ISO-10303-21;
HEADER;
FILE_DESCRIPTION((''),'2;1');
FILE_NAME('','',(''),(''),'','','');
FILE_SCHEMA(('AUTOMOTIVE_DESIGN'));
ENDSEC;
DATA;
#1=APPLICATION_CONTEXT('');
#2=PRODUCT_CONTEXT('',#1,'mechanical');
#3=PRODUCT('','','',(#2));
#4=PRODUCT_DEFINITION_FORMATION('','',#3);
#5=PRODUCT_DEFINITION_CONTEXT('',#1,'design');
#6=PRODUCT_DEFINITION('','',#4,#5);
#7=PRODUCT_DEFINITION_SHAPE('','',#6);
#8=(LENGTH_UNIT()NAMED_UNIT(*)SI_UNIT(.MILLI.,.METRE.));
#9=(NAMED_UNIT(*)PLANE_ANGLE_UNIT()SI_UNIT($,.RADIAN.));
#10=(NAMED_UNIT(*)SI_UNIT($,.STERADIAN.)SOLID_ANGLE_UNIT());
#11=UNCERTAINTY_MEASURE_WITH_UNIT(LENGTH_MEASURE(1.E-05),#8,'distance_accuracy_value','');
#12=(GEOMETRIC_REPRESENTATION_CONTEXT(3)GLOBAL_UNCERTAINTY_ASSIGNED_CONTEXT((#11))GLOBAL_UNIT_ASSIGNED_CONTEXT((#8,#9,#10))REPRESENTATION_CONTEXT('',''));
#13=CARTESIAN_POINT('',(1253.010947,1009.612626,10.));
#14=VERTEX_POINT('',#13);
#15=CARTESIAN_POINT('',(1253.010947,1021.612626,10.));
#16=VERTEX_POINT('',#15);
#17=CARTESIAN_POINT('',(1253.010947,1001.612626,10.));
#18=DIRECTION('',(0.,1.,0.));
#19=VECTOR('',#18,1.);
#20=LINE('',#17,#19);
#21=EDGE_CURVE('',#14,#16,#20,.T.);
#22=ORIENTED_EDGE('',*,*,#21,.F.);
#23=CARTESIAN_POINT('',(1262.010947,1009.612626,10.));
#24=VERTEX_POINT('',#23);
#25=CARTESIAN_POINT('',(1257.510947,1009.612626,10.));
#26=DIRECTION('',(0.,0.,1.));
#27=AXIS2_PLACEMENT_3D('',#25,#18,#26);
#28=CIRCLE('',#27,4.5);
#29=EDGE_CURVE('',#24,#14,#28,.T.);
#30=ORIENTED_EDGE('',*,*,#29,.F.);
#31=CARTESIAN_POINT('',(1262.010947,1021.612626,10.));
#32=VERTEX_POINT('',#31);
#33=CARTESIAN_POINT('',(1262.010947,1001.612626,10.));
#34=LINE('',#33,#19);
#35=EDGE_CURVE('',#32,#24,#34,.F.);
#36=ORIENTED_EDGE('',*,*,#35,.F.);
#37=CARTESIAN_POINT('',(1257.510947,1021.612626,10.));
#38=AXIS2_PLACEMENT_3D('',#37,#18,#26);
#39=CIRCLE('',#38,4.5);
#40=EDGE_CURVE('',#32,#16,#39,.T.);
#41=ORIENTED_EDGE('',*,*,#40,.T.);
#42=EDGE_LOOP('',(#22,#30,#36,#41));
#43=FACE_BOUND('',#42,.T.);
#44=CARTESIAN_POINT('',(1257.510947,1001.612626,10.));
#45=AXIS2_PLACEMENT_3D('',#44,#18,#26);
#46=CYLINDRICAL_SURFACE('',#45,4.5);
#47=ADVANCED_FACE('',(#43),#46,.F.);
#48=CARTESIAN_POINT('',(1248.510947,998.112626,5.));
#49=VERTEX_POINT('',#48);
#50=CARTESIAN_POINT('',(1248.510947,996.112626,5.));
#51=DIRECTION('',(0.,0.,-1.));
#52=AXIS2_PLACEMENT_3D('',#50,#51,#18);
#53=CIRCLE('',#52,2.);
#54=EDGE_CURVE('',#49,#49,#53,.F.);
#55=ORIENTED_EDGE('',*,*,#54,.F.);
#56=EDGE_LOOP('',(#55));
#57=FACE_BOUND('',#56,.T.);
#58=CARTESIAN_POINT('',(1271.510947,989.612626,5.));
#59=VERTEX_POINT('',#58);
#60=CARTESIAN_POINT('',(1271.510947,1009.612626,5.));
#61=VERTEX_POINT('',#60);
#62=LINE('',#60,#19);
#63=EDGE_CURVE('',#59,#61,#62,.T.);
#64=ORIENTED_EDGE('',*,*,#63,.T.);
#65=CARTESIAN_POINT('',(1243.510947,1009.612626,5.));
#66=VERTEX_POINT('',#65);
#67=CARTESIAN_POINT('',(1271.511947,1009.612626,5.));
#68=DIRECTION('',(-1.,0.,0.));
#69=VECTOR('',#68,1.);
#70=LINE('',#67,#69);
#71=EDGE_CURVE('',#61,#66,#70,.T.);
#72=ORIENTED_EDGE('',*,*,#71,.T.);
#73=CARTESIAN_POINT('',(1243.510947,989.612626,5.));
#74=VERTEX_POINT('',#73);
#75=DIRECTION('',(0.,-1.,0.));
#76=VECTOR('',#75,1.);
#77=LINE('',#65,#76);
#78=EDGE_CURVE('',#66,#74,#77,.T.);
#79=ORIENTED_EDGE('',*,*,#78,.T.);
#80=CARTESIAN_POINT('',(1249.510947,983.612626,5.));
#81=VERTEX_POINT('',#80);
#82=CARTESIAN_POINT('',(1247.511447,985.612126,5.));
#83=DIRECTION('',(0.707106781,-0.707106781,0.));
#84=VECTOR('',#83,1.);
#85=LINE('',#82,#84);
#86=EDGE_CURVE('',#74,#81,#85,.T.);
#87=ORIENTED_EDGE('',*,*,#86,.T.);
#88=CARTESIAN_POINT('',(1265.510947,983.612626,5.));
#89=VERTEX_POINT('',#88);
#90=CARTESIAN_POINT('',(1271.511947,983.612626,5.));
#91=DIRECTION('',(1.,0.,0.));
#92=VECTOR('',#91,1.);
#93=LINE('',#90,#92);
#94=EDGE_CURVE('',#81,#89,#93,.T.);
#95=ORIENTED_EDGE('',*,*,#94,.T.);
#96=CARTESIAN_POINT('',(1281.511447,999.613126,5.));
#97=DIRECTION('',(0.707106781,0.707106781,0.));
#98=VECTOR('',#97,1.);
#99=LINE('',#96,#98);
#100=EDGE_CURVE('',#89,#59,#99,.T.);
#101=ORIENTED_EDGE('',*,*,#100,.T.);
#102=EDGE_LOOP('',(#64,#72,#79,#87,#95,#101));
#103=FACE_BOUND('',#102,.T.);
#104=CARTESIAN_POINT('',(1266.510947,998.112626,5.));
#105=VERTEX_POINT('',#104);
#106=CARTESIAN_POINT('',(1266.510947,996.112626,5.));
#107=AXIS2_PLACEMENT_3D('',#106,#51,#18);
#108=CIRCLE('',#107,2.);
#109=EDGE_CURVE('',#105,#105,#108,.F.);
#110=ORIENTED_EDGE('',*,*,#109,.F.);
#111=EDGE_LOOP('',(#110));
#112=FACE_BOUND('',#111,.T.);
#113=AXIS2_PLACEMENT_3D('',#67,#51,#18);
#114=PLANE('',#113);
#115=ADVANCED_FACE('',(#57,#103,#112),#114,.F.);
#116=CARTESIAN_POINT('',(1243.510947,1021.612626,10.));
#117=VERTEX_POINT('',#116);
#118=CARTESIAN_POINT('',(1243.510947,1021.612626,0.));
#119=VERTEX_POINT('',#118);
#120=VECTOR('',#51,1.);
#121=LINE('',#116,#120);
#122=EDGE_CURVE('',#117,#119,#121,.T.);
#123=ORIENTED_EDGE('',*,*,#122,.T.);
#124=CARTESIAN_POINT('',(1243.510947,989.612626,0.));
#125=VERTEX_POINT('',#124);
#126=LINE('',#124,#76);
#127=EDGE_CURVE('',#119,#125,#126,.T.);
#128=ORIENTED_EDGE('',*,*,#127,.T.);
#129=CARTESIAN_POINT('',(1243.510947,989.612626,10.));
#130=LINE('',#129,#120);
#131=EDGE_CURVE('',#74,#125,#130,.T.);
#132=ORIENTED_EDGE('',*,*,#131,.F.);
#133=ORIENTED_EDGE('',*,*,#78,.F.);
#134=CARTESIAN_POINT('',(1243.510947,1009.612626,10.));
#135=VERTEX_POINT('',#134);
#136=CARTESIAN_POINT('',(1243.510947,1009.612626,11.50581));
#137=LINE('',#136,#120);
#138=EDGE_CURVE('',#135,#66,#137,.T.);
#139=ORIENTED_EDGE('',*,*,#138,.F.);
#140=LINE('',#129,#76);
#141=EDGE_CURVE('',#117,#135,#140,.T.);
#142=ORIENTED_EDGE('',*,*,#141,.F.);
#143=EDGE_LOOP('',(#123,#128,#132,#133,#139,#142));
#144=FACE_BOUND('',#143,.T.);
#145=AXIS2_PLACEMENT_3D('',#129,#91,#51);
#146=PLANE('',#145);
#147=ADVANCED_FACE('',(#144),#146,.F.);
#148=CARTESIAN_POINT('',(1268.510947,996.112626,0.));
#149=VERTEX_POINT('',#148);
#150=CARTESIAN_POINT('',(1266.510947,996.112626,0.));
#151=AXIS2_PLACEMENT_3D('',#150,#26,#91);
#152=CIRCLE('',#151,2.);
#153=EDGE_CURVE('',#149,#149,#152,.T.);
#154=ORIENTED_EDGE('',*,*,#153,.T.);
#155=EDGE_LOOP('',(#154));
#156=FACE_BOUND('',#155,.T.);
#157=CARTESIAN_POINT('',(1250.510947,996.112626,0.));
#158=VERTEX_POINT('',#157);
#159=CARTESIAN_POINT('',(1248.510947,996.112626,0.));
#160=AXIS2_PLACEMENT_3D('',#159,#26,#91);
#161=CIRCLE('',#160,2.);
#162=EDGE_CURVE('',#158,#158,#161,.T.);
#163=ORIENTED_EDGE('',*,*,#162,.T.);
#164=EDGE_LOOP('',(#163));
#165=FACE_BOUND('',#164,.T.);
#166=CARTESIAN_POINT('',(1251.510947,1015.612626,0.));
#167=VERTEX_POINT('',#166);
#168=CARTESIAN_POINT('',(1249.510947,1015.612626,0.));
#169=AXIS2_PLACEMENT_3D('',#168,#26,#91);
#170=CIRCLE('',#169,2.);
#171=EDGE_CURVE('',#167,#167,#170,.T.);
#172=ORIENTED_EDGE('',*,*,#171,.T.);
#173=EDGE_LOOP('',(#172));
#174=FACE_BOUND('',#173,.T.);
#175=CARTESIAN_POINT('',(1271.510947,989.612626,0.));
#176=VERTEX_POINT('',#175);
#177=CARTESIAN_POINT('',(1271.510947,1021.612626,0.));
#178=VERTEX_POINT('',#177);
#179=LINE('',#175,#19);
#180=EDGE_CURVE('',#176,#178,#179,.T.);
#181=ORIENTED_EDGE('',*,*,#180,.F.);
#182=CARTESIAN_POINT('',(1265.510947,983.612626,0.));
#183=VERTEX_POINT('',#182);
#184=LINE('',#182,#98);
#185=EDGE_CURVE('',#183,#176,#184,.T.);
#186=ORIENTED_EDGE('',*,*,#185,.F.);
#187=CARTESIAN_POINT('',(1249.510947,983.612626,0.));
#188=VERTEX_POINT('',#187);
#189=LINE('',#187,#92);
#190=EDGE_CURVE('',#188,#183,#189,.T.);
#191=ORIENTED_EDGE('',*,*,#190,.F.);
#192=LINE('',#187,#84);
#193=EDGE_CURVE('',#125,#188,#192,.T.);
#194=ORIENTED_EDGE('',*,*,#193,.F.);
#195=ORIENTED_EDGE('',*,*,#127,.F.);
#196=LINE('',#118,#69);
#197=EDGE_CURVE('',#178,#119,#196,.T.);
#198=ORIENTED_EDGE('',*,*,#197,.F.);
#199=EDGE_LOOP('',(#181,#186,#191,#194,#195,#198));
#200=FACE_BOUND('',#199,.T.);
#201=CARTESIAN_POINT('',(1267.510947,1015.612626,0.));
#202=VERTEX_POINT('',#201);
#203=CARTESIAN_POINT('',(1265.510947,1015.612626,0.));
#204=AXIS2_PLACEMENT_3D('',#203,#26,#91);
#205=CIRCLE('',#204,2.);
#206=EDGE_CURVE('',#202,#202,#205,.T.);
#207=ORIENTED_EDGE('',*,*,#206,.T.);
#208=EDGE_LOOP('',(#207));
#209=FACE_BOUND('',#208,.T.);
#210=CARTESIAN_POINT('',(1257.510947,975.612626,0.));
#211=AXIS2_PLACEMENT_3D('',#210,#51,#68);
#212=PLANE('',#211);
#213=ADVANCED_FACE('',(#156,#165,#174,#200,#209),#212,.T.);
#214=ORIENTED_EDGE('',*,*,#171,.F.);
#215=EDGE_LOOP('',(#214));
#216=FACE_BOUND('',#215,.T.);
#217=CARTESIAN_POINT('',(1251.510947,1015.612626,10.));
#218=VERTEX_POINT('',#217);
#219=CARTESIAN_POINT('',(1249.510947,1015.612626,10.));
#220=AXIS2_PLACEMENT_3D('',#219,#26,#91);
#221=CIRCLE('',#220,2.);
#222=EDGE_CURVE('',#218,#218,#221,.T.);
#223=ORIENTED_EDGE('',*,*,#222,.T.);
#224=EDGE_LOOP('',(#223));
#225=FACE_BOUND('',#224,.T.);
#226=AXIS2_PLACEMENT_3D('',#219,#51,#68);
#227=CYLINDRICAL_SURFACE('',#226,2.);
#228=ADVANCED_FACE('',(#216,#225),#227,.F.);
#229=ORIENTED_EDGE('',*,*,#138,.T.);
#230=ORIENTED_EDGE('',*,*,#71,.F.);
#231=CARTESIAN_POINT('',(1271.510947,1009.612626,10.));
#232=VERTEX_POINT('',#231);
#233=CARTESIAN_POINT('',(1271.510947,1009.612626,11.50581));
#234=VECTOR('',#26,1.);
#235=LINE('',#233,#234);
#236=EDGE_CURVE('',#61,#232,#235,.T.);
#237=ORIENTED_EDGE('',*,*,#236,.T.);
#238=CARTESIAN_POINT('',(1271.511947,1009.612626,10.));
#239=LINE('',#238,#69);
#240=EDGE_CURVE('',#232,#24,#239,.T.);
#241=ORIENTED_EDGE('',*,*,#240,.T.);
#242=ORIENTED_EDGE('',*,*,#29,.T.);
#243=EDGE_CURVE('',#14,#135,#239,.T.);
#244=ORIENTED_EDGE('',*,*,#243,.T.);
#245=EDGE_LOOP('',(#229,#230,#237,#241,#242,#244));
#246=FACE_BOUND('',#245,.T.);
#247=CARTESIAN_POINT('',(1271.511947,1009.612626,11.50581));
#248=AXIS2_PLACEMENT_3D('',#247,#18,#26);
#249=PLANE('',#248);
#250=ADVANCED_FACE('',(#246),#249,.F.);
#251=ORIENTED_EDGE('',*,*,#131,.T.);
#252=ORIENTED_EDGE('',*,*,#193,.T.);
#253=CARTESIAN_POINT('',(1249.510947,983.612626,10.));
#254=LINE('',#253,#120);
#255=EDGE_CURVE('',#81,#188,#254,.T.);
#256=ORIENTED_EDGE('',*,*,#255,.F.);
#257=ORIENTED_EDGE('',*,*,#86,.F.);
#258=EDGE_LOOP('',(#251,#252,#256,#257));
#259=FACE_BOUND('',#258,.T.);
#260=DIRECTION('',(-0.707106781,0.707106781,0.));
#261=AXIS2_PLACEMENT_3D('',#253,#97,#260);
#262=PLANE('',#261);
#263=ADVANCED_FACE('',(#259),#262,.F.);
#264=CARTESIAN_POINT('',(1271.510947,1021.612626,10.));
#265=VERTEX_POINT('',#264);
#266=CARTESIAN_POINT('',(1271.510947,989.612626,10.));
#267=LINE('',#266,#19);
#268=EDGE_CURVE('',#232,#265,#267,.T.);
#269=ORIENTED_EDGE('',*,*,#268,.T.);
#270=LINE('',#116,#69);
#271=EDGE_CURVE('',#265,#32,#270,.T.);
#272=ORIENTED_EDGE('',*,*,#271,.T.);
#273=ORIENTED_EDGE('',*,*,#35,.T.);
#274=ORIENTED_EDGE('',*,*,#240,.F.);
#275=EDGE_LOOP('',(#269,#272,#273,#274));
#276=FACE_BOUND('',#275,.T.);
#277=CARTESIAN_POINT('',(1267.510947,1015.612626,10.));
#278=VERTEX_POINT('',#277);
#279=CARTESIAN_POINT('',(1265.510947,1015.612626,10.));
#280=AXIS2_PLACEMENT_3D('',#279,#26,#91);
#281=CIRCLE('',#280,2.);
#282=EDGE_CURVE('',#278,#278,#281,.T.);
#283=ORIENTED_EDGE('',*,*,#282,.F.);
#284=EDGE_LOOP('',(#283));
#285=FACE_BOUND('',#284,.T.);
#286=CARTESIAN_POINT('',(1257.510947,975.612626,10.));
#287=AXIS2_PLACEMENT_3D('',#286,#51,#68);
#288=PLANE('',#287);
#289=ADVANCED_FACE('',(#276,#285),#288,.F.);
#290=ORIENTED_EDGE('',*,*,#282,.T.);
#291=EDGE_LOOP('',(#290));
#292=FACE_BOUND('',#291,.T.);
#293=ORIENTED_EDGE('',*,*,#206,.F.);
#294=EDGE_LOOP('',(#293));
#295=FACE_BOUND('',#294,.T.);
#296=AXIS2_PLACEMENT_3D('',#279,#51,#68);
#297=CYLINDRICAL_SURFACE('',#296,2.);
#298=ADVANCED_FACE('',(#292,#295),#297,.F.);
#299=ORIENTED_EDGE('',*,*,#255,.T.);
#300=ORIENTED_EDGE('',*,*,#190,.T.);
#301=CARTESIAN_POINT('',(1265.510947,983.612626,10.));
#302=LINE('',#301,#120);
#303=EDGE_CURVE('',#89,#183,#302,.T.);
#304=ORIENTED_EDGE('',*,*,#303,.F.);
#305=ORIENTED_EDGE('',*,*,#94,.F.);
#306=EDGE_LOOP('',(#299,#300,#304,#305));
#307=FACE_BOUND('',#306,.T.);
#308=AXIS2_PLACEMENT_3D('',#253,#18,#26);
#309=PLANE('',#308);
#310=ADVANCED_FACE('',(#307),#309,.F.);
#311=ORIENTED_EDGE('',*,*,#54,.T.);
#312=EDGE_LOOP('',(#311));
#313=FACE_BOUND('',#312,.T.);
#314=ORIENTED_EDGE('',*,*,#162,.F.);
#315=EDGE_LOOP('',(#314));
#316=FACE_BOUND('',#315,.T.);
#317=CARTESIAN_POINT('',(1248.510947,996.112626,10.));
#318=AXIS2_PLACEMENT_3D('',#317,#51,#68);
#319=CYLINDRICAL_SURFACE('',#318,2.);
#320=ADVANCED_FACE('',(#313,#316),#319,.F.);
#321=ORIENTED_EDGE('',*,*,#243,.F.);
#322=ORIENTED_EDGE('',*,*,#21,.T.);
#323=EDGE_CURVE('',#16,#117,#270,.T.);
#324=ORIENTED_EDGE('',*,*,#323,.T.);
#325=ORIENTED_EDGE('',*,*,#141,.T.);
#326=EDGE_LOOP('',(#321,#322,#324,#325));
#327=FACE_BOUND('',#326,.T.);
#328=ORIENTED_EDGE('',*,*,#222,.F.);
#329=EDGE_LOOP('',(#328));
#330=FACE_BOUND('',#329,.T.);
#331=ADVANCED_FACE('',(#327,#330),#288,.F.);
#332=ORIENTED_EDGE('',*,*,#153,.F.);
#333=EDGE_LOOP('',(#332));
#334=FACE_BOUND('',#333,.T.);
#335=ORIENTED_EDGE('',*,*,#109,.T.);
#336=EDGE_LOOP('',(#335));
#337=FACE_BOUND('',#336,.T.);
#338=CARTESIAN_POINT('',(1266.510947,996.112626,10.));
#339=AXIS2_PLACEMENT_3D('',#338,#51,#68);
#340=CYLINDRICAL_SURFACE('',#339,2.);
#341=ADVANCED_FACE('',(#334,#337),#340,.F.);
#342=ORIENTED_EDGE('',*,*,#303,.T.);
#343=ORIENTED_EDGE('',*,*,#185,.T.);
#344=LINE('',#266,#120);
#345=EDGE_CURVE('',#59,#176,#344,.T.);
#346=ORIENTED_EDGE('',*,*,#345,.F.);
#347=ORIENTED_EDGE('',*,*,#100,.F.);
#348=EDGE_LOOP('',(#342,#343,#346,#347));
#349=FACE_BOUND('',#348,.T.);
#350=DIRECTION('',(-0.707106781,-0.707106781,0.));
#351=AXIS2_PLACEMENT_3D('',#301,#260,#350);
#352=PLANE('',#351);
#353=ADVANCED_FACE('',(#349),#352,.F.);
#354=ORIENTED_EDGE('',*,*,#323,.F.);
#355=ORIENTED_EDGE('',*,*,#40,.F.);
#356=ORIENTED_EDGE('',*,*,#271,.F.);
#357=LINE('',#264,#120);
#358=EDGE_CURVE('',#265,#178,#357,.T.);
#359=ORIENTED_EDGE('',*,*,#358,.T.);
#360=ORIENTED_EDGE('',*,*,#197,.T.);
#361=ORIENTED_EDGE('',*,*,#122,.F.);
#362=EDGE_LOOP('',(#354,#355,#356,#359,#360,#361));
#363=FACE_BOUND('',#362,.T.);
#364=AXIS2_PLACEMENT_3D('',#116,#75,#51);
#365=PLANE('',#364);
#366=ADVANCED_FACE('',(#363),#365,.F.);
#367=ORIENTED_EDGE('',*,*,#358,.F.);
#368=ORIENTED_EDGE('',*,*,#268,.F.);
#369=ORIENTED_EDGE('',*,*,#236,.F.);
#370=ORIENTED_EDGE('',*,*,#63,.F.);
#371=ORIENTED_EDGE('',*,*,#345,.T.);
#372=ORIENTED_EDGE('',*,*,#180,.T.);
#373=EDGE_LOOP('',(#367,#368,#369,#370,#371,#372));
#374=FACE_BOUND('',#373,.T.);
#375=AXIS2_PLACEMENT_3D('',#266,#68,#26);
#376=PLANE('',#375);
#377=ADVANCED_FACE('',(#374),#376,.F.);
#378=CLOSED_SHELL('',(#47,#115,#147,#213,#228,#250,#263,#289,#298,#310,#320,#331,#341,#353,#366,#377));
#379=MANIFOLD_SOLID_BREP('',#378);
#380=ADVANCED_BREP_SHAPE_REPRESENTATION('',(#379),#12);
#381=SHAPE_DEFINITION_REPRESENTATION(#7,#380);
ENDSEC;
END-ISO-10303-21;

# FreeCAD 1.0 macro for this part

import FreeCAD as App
import Part
import Sketcher

V = App.Vector
Q = App.Units.Quantity

doc = App.newDocument("Part")
body = doc.addObject("PartDesign::Body", "Body")

# Sketch on XY plane
sketch1 = doc.addObject("Sketcher::SketchObject", "Sketch")
body.addObject(sketch1)
sketch1.AttachmentSupport = (doc.XY_Plane, [""])
sketch1.MapMode = "FlatFace"
sketch1.addGeometry(Part.LineSegment(V(1243.5, 1021.6, 0), V(1243.5, 989.6, 0)), False)
sketch1.addGeometry(Part.LineSegment(V(1243.5, 989.6, 0), V(1249.5, 983.6, 0)), False)
sketch1.addGeometry(Part.LineSegment(V(1249.5, 983.6, 0), V(1265.5, 983.6, 0)), False)
sketch1.addGeometry(Part.LineSegment(V(1265.5, 983.6, 0), V(1271.5, 989.6, 0)), False)
sketch1.addGeometry(Part.LineSegment(V(1271.5, 989.6, 0), V(1271.5, 1021.6, 0)), False)
sketch1.addGeometry(Part.LineSegment(V(1271.5, 1021.6, 0), V(1243.5, 1021.6, 0)), False)
sketch1.addGeometry(Part.Circle(V(1266.5, 996.1, 0), V(0, 0, 1), 2), False)
sketch1.addGeometry(Part.Circle(V(1248.5, 996.1, 0), V(0, 0, 1), 2), False)
sketch1.addGeometry(Part.Circle(V(1265.5, 1015.6, 0), V(0, 0, 1), 2), False)
sketch1.addGeometry(Part.Circle(V(1249.5, 1015.6, 0), V(0, 0, 1), 2), False)
sketch1.addConstraint(Sketcher.Constraint("Coincident", 0, 2, 1, 1))
sketch1.addConstraint(Sketcher.Constraint("Coincident", 1, 2, 2, 1))
sketch1.addConstraint(Sketcher.Constraint("Coincident", 2, 2, 3, 1))
sketch1.addConstraint(Sketcher.Constraint("Coincident", 3, 2, 4, 1))
sketch1.addConstraint(Sketcher.Constraint("Coincident", 4, 2, 5, 1))
sketch1.addConstraint(Sketcher.Constraint("Coincident", 5, 2, 0, 1))
sketch1.addConstraint(Sketcher.Constraint("Vertical", 0))
sketch1.addConstraint(Sketcher.Constraint("Horizontal", 2))
sketch1.addConstraint(Sketcher.Constraint("Vertical", 4))
sketch1.addConstraint(Sketcher.Constraint("Horizontal", 5))
sketch1.addConstraint(Sketcher.Constraint("Equal", 6, 7))
sketch1.addConstraint(Sketcher.Constraint("Equal", 7, 8))
sketch1.addConstraint(Sketcher.Constraint("Equal", 8, 9))
sketch1.addConstraint(Sketcher.Constraint("Perpendicular", 1, 3))
sketch1.addConstraint(Sketcher.Constraint("Horizontal", 6, 3, 7, 3))
sketch1.addConstraint(Sketcher.Constraint("Horizontal", 8, 3, 9, 3))
sketch1.addConstraint(Sketcher.Constraint("Horizontal", 0, 2, 3, 2))
sketch1.addConstraint(Sketcher.Constraint("Vertical", 9, 3, 1, 2))
sketch1.addConstraint(Sketcher.Constraint("Vertical", 8, 3, 2, 2))
sketch1.addConstraint(Sketcher.Constraint("Equal", 1, 3))
sketch1.addConstraint(Sketcher.Constraint("Diameter", 6, Q("4 mm")))
sketch1.addConstraint(Sketcher.Constraint("DistanceX", 2, 1, 2, 2, Q("16 mm")))
sketch1.addConstraint(Sketcher.Constraint("DistanceX", 5, 2, 5, 1, Q("28 mm")))
sketch1.addConstraint(Sketcher.Constraint("DistanceY", 0, 2, 0, 1, Q("32 mm")))
sketch1.addConstraint(Sketcher.Constraint("DistanceX", 7, 3, 6, 3, Q("18 mm")))
sketch1.addConstraint(Sketcher.Constraint("DistanceX", 8, 3, 6, 3, Q("1 mm")))
sketch1.addConstraint(Sketcher.Constraint("DistanceY", 0, 2, 9, 3, Q("26 mm")))
sketch1.addConstraint(Sketcher.Constraint("DistanceY", 6, 3, 8, 3, Q("19.5 mm")))
sketch1.addConstraint(Sketcher.Constraint("DistanceX", -1, 1, 6, 3, Q("1266.510947 mm")))
sketch1.addConstraint(Sketcher.Constraint("DistanceY", -1, 1, 6, 3, Q("996.112626 mm")))
pad1 = doc.addObject("PartDesign::Pad", "Pad")
body.addObject(pad1)
pad1.Profile = sketch1
pad1.Length = 10

# Sketch on YZ plane
sketch2 = doc.addObject("Sketcher::SketchObject", "Sketch001")
body.addObject(sketch2)
sketch2.AttachmentSupport = (doc.YZ_Plane, [""])
sketch2.MapMode = "FlatFace"
sketch2.AttachmentOffset = App.Placement(V(0, 0, 1243.510947), App.Rotation())
sketch2.addGeometry(Part.LineSegment(V(1010, 5, 0), V(976, 5, 0)), False)
sketch2.addGeometry(Part.LineSegment(V(976, 5, 0), V(976, 12, 0)), False)
sketch2.addGeometry(Part.LineSegment(V(976, 12, 0), V(1010, 12, 0)), False)
sketch2.addGeometry(Part.LineSegment(V(1010, 12, 0), V(1010, 5, 0)), False)
sketch2.addConstraint(Sketcher.Constraint("Coincident", 0, 2, 1, 1))
sketch2.addConstraint(Sketcher.Constraint("Coincident", 1, 2, 2, 1))
sketch2.addConstraint(Sketcher.Constraint("Coincident", 2, 2, 3, 1))
sketch2.addConstraint(Sketcher.Constraint("Coincident", 3, 2, 0, 1))
sketch2.addConstraint(Sketcher.Constraint("Horizontal", 0))
sketch2.addConstraint(Sketcher.Constraint("Vertical", 1))
sketch2.addConstraint(Sketcher.Constraint("Horizontal", 2))
sketch2.addConstraint(Sketcher.Constraint("Vertical", 3))
sketch2.addConstraint(Sketcher.Constraint("DistanceY", -1, 1, 0, 2, Q("5 mm")))
sketch2.addConstraint(Sketcher.Constraint("DistanceX", 0, 2, 0, 1, Q("33.357061 mm")))
sketch2.addConstraint(Sketcher.Constraint("DistanceY", 1, 1, 1, 2, Q("6.50581 mm")))
sketch2.addConstraint(Sketcher.Constraint("DistanceX", -1, 1, 0, 2, Q("976.255565 mm")))
pocket1 = doc.addObject("PartDesign::Pocket", "Pocket")
body.addObject(pocket1)
pocket1.Profile = sketch2
pocket1.Type = "UpToFirst"
pocket1.Reversed = True

# Sketch on XZ plane
sketch3 = doc.addObject("Sketcher::SketchObject", "Sketch002")
body.addObject(sketch3)
sketch3.AttachmentSupport = (doc.XZ_Plane, [""])
sketch3.MapMode = "FlatFace"
sketch3.AttachmentOffset = App.Placement(V(0, 0, -1021.612626), App.Rotation())
sketch3.addGeometry(Part.Circle(V(1257.5, 10, 0), V(0, 0, 1), 4.5), False)
sketch3.addConstraint(Sketcher.Constraint("Diameter", 0, Q("9 mm")))
sketch3.addConstraint(Sketcher.Constraint("DistanceY", -1, 1, 0, 3, Q("10 mm")))
sketch3.addConstraint(Sketcher.Constraint("DistanceX", -1, 1, 0, 3, Q("1257.510947 mm")))
pocket2 = doc.addObject("PartDesign::Pocket", "Pocket001")
body.addObject(pocket2)
pocket2.Profile = sketch3
pocket2.Length = 20
pocket2.Reversed = True

doc.recompute()
